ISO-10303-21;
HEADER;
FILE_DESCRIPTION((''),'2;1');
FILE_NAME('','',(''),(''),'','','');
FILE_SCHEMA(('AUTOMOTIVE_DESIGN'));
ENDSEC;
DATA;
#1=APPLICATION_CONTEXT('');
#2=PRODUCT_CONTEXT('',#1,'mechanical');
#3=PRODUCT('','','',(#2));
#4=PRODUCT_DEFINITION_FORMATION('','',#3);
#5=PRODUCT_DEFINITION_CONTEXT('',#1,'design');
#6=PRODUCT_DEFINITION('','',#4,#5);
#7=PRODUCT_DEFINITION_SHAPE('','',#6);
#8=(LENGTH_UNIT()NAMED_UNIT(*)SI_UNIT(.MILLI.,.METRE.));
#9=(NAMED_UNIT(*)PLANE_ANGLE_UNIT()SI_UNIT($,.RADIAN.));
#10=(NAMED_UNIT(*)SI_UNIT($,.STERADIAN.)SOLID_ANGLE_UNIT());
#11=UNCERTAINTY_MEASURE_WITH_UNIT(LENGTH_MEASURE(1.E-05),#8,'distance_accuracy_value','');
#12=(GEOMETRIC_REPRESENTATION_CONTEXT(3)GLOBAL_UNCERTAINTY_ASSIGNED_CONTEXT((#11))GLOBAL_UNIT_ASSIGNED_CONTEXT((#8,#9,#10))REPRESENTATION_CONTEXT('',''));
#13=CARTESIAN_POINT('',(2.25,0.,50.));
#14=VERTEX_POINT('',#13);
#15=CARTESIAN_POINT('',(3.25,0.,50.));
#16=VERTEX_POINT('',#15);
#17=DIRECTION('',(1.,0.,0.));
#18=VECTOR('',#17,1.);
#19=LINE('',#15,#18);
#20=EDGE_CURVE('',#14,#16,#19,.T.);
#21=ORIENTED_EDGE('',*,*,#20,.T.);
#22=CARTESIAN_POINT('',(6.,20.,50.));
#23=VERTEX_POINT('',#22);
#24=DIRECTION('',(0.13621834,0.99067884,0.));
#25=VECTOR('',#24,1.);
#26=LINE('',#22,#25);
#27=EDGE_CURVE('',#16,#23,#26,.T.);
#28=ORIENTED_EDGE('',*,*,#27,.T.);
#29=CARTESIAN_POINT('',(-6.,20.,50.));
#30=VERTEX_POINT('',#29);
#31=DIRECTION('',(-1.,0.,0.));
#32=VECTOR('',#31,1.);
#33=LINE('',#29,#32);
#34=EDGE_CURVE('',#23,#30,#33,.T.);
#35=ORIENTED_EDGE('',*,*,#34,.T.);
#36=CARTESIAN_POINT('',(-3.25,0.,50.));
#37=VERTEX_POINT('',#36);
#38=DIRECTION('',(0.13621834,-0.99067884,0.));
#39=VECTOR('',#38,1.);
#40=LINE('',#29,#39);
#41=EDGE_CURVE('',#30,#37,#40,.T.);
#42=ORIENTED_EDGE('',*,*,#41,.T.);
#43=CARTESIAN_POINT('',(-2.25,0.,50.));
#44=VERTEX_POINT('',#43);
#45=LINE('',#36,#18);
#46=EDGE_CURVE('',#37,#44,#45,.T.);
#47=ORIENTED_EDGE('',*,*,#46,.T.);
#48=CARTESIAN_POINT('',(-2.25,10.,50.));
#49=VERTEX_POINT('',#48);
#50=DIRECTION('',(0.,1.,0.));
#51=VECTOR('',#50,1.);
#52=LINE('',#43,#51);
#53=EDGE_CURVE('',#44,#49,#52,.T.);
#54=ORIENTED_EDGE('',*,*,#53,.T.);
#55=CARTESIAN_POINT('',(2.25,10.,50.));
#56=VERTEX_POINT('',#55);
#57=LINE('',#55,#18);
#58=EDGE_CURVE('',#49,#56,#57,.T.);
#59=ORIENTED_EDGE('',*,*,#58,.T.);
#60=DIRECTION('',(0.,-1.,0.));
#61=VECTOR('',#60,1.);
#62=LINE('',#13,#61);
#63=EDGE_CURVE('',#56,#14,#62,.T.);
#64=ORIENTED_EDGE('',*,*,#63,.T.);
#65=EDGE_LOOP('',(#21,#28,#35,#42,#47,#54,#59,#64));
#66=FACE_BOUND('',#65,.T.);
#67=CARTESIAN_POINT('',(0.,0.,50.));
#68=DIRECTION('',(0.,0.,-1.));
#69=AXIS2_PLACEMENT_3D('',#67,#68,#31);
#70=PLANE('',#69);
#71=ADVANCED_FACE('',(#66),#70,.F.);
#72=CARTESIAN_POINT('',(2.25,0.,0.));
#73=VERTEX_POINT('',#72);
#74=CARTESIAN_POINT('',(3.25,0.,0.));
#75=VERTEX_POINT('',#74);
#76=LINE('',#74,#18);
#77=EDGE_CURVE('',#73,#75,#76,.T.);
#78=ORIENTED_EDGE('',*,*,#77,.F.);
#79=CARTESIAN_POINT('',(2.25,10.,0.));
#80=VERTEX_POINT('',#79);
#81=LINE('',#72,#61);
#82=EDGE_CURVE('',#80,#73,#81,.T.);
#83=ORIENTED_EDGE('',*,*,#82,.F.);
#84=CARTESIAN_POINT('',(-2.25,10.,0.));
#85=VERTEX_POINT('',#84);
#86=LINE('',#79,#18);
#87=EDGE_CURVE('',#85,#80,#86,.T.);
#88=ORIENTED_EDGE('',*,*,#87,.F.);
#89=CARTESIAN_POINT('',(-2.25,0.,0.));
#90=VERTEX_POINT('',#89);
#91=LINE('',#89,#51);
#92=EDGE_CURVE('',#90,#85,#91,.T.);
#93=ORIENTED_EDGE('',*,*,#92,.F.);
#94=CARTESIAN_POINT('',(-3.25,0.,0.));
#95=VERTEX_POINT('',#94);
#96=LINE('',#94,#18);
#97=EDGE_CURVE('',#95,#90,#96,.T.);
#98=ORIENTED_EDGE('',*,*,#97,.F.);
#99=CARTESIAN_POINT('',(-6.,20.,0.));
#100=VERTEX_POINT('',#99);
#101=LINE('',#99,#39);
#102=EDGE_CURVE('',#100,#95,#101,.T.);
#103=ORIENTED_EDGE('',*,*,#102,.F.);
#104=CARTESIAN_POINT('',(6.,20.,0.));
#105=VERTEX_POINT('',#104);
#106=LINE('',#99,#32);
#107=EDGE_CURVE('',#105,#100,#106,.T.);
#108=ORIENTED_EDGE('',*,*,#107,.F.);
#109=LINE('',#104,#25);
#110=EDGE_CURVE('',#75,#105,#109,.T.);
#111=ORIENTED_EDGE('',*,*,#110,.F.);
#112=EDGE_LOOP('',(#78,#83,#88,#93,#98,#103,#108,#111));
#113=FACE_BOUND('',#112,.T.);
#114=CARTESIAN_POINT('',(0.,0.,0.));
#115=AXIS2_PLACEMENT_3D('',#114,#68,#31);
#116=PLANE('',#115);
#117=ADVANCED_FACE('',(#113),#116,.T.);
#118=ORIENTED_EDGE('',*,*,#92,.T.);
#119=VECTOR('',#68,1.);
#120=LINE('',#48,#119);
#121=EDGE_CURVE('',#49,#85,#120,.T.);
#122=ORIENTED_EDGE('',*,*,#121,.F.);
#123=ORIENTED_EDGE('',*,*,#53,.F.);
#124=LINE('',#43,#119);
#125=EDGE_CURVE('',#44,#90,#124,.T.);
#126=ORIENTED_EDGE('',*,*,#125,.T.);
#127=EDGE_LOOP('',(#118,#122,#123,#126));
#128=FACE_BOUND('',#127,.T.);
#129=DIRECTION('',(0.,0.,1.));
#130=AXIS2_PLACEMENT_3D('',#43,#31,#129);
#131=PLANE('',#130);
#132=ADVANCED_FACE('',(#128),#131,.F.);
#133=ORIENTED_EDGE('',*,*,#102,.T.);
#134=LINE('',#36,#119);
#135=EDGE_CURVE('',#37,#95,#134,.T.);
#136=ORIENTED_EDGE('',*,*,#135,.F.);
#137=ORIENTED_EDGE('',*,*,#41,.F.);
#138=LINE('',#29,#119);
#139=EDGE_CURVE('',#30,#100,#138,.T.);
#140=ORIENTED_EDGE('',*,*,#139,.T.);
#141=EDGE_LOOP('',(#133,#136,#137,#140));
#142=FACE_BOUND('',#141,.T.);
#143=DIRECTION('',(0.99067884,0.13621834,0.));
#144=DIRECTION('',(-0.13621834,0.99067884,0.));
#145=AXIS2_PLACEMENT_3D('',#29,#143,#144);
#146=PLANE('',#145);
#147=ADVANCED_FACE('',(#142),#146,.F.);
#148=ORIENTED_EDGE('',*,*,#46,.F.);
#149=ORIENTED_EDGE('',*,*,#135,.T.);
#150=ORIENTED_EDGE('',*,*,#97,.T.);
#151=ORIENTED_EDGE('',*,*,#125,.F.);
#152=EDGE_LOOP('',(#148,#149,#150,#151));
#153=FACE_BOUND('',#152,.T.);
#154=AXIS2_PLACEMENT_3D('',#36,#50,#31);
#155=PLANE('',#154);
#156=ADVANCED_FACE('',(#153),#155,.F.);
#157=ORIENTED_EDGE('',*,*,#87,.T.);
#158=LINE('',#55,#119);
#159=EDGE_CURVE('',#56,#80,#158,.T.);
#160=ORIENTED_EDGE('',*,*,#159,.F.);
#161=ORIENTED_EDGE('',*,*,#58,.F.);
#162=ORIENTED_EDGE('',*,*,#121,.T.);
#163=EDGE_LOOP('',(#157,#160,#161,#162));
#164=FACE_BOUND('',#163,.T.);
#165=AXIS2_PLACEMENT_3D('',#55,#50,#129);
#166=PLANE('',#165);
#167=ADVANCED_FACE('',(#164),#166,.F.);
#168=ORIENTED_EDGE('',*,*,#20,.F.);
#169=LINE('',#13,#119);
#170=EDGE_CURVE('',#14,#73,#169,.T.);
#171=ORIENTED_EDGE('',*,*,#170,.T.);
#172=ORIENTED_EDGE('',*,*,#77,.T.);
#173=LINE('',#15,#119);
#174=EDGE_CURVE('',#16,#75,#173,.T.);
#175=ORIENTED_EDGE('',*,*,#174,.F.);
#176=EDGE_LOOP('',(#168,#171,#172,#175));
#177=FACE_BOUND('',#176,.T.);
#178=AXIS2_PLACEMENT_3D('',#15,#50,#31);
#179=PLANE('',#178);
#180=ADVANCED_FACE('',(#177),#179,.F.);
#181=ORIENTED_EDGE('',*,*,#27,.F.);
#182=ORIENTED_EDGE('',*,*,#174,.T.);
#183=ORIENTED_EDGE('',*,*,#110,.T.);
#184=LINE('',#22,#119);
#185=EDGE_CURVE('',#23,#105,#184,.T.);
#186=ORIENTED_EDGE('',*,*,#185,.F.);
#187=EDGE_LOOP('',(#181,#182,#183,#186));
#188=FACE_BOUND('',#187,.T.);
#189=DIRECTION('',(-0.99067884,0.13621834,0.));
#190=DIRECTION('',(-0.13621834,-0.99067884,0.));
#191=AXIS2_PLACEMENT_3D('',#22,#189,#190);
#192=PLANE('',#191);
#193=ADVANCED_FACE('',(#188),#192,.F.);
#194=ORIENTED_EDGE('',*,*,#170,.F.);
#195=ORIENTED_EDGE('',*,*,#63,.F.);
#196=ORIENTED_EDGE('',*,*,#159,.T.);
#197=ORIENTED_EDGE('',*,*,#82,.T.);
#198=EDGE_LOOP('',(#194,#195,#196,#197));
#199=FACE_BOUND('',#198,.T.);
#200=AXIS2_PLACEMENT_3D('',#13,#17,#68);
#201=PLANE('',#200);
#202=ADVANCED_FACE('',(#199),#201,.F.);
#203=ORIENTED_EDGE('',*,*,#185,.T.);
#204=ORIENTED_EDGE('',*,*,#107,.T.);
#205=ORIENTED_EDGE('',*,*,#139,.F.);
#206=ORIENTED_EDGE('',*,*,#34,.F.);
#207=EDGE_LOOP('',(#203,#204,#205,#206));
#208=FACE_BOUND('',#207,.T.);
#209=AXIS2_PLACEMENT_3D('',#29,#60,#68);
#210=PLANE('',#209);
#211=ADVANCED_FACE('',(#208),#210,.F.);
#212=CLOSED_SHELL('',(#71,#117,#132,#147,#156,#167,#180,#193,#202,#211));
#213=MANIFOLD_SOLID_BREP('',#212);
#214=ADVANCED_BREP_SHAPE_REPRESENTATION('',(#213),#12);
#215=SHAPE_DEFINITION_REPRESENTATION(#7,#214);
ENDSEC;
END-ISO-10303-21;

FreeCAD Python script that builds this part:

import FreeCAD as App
import Part
import Sketcher

V = App.Vector


def add_polygon(sketch, points):
    """Adds a closed chain of lines whose ends are joined by coincident constraints."""
    first, n = sketch.GeometryCount, len(points)
    for a, b in zip(points, points[1:] + points[:1]):
        sketch.addGeometry(Part.LineSegment(App.Vector(*a, 0), App.Vector(*b, 0)), False)
    for i in range(n):
        sketch.addConstraint(Sketcher.Constraint("Coincident", first + i, 2, first + (i + 1) % n, 1))

doc = App.newDocument("Part")
params = doc.addObject("Spreadsheet::Sheet", "Params")
for row, (alias, value) in enumerate([
    ("sketch1_width", "12 mm"),
    ("sketch1_width2", "1 mm"),
    ("sketch1_height", "10 mm"),
    ("sketch1_width3", "4.5 mm"),
    ("pad1_length", "50 mm"),
], start=1):
    params.set(f"A{row}", alias)
    params.set(f"B{row}", "=" + value)
    params.setAlias(f"B{row}", alias)

body = doc.addObject("PartDesign::Body", "Body")

sketch1 = body.newObject("Sketcher::SketchObject", "Sketch")
sketch1.AttachmentSupport = (doc.getObject("XY_Plane"), [""])
sketch1.MapMode = "FlatFace"
add_polygon(sketch1, [(6, 20), (-6, 20), (-3.25, 0), (-2.25, 0), (-2.25, 10), (2.25, 10), (2.25, 0), (3.25, 0)])
sketch1.addConstraint([
    Sketcher.Constraint("Horizontal", 0),
    Sketcher.Constraint("Horizontal", 2),
    Sketcher.Constraint("Vertical", 3),
    Sketcher.Constraint("Horizontal", 4),
    Sketcher.Constraint("Vertical", 5),
    Sketcher.Constraint("Horizontal", 6),
    Sketcher.Constraint("Symmetric", 2, 2, 5, 2, -1, 1),
    Sketcher.Constraint("Symmetric", 1, 2, 6, 2, -2),
    Sketcher.Constraint("Equal", 1, 7),
    Sketcher.Constraint("DistanceX", 0, 2, 0, 1, 12.0),
    Sketcher.Constraint("DistanceX", 2, 1, 2, 2, 1.0),
    Sketcher.Constraint("DistanceY", 3, 1, 3, 2, 10.0),
    Sketcher.Constraint("DistanceX", 4, 1, 4, 2, 4.5),
    Sketcher.Constraint("DistanceY", -1, 1, 0, 2, 20.0),
])
sketch1.setExpression("Constraints[17]", "Params.sketch1_width")
sketch1.setExpression("Constraints[18]", "Params.sketch1_width2")
sketch1.setExpression("Constraints[19]", "Params.sketch1_height")
sketch1.setExpression("Constraints[20]", "Params.sketch1_width3")
pad1 = body.newObject("PartDesign::Pad", "Pad")
pad1.Profile = sketch1
pad1.setExpression("Length", "Params.pad1_length")

doc.recompute()
